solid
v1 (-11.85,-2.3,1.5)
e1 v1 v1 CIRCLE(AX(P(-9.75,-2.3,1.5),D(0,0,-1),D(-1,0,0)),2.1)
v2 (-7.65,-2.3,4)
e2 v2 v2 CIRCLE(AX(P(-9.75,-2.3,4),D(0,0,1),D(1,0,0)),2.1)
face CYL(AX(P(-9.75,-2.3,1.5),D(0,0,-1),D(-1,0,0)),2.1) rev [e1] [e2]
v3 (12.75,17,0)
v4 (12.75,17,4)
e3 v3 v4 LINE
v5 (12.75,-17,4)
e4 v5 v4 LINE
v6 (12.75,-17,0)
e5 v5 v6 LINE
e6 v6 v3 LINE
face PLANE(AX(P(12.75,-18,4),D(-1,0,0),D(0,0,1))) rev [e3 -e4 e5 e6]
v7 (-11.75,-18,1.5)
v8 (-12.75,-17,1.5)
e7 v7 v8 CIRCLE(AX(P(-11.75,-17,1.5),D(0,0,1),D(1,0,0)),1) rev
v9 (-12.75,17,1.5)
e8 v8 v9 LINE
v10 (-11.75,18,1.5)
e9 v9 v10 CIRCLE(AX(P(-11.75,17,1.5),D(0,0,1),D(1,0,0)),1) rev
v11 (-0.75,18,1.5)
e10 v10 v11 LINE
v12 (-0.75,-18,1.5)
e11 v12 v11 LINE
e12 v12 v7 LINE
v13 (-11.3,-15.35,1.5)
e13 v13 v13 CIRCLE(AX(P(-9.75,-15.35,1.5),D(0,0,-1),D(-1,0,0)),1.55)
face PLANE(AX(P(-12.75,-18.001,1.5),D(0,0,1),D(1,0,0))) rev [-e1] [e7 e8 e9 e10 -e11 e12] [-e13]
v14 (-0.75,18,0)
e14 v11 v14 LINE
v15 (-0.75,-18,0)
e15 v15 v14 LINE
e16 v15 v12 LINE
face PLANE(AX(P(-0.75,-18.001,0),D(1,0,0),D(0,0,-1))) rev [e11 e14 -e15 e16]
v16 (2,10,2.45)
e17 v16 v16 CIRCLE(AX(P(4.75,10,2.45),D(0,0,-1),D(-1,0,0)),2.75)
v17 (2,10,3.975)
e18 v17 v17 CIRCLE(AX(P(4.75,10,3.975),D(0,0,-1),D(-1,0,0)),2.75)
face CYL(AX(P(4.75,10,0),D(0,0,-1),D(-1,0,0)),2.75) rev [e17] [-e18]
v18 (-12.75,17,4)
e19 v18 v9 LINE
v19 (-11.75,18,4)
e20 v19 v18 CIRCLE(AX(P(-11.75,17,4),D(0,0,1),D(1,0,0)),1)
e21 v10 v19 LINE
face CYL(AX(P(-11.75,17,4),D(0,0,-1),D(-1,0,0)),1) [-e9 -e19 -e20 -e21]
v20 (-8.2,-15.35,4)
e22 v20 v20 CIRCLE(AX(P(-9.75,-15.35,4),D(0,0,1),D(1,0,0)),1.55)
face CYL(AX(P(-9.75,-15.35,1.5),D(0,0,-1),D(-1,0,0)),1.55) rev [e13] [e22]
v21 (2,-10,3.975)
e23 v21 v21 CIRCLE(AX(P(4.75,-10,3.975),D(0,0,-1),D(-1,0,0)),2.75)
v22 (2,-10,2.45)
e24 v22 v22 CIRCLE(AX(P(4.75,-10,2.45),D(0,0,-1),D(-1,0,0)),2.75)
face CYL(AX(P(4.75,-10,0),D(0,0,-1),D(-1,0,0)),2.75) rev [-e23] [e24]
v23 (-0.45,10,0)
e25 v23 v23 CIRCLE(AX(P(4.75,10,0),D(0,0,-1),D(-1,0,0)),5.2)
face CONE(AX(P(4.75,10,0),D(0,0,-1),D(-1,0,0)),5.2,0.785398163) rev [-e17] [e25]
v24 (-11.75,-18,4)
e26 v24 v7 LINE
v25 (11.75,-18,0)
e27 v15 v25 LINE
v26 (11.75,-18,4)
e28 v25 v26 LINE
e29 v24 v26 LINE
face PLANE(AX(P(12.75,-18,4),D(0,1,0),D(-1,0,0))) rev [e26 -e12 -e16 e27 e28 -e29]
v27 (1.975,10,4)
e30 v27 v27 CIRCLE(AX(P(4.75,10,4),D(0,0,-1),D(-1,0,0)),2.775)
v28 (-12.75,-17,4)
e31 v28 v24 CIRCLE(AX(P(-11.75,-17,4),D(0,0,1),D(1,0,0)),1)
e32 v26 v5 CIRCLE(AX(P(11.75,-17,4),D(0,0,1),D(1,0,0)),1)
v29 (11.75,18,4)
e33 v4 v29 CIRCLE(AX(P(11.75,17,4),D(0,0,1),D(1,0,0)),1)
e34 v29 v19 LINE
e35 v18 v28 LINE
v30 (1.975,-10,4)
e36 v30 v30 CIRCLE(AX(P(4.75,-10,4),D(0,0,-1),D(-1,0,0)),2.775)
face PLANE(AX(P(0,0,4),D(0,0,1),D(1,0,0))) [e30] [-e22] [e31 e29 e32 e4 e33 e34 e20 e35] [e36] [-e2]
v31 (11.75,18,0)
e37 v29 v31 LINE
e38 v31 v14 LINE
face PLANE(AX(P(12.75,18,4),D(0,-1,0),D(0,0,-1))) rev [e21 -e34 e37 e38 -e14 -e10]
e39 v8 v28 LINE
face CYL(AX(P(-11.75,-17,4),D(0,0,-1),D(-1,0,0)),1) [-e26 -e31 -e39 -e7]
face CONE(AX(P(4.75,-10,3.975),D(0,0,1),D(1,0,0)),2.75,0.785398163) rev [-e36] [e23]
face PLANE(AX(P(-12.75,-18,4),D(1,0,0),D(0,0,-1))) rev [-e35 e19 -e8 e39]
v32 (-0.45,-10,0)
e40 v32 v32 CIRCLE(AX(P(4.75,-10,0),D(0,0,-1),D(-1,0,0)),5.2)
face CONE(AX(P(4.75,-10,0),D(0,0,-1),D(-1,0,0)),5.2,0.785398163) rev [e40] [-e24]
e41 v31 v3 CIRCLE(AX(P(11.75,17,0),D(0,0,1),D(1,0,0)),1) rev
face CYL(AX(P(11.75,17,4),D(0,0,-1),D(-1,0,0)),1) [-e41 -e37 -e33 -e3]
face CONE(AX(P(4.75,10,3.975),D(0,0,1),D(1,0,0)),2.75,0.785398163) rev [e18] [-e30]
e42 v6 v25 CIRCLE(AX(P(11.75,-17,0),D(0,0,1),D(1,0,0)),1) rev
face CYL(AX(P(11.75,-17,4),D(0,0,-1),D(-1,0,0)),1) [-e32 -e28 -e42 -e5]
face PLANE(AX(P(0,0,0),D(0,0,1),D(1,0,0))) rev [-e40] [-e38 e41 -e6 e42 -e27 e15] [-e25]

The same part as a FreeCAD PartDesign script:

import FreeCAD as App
import Part
import Sketcher
from FreeCAD import Vector
Q = App.Units.Quantity


def edges_at(feature, points):
    """Names of the edges that pass closest to the given points."""
    edges = feature.Shape.Edges
    near = lambda p: min(range(len(edges)), key=lambda i: edges[i].distToShape(Part.Vertex(*p))[0])
    return sorted({f"Edge{near(p) + 1}" for p in points})

doc = App.newDocument("Part")
body = doc.addObject("PartDesign::Body", "Body")

# Sketch on XY plane
sketch1 = body.newObject("Sketcher::SketchObject", "Sketch")
sketch1.AttachmentSupport = (doc.getObject("XY_Plane"), [""])
sketch1.MapMode = "FlatFace"
sketch1.addGeometry(Part.LineSegment(Vector(-13, 18, 0), Vector(-13, -18, 0)), False)
sketch1.addGeometry(Part.LineSegment(Vector(-13, -18, 0), Vector(13, -18, 0)), False)
sketch1.addGeometry(Part.LineSegment(Vector(13, -18, 0), Vector(13, 18, 0)), False)
sketch1.addGeometry(Part.LineSegment(Vector(13, 18, 0), Vector(-13, 18, 0)), False)
sketch1.addConstraint(Sketcher.Constraint("Coincident", 0, 2, 1, 1))
sketch1.addConstraint(Sketcher.Constraint("Coincident", 1, 2, 2, 1))
sketch1.addConstraint(Sketcher.Constraint("Coincident", 2, 2, 3, 1))
sketch1.addConstraint(Sketcher.Constraint("Coincident", 3, 2, 0, 1))
sketch1.addConstraint(Sketcher.Constraint("Vertical", 0))
sketch1.addConstraint(Sketcher.Constraint("Horizontal", 1))
sketch1.addConstraint(Sketcher.Constraint("Vertical", 2))
sketch1.addConstraint(Sketcher.Constraint("Horizontal", 3))
sketch1.addConstraint(Sketcher.Constraint("Symmetric", 0, 2, 2, 2, -1, 1))
sketch1.addConstraint(Sketcher.Constraint("DistanceY", 0, 2, 0, 1, 36.0))
sketch1.addConstraint(Sketcher.Constraint("DistanceX", 1, 1, 1, 2, 25.5))
pad1 = body.newObject("PartDesign::Pad", "Pad")
pad1.Profile = sketch1
pad1.Length = 4

# Sketch on XZ plane
sketch2 = body.newObject("Sketcher::SketchObject", "Sketch001")
sketch2.AttachmentSupport = (doc.getObject("XZ_Plane"), [""])
sketch2.MapMode = "FlatFace"
sketch2.AttachmentOffset = App.Placement(Vector(0, 0, -18), App.Rotation())
sketch2.addGeometry(Part.LineSegment(Vector(-12.8, 0, 0), Vector(-12.8, 1.5, 0)), False)
sketch2.addGeometry(Part.LineSegment(Vector(-12.8, 1.5, 0), Vector(-0.8, 1.5, 0)), False)
sketch2.addGeometry(Part.LineSegment(Vector(-0.8, 1.5, 0), Vector(-0.8, 0, 0)), False)
sketch2.addGeometry(Part.LineSegment(Vector(-0.8, 0, 0), Vector(-12.8, 0, 0)), False)
sketch2.addConstraint(Sketcher.Constraint("Coincident", 0, 2, 1, 1))
sketch2.addConstraint(Sketcher.Constraint("Coincident", 1, 2, 2, 1))
sketch2.addConstraint(Sketcher.Constraint("Coincident", 2, 2, 3, 1))
sketch2.addConstraint(Sketcher.Constraint("Coincident", 3, 2, 0, 1))
sketch2.addConstraint(Sketcher.Constraint("Vertical", 0))
sketch2.addConstraint(Sketcher.Constraint("Horizontal", 1))
sketch2.addConstraint(Sketcher.Constraint("Vertical", 2))
sketch2.addConstraint(Sketcher.Constraint("Horizontal", 3))
sketch2.addConstraint(Sketcher.Constraint("PointOnObject", 2, 2, -1))
sketch2.addConstraint(Sketcher.Constraint("DistanceX", 1, 1, 1, 2, 12.0))
sketch2.addConstraint(Sketcher.Constraint("DistanceY", 0, 1, 0, 2, 1.5))
sketch2.addConstraint(Sketcher.Constraint("DistanceX", 0, 2, -1, 1, 12.75))
pocket1 = body.newObject("PartDesign::Pocket", "Pocket")
pocket1.Profile = sketch2
pocket1.Type = "UpToFirst"
pocket1.Reversed = True

# Sketch on YZ plane
sketch3 = body.newObject("Sketcher::SketchObject", "Sketch002")
sketch3.AttachmentSupport = (doc.getObject("YZ_Plane"), [""])
sketch3.MapMode = "FlatFace"
sketch3.AttachmentOffset = App.Placement(Vector(0, 0, 4.75), App.Rotation())
sketch3.addGeometry(Part.LineSegment(Vector(10, 4, 0), Vector(10, 0, 0)), False)
sketch3.addGeometry(Part.LineSegment(Vector(10, 0, 0), Vector(15.2, 0, 0)), False)
sketch3.addGeometry(Part.LineSegment(Vector(15.2, 0, 0), Vector(12.75, 2.45, 0)), False)
sketch3.addGeometry(Part.LineSegment(Vector(12.75, 2.45, 0), Vector(12.75, 3.975, 0)), False)
sketch3.addGeometry(Part.LineSegment(Vector(12.75, 3.975, 0), Vector(12.775, 4, 0)), False)
sketch3.addGeometry(Part.LineSegment(Vector(12.775, 4, 0), Vector(10, 4, 0)), False)
sketch3.addGeometry(Part.LineSegment(Vector(10, 0, 0), Vector(10, 4, 0)), True)  # axis
sketch3.addConstraint(Sketcher.Constraint("Coincident", 0, 2, 1, 1))
sketch3.addConstraint(Sketcher.Constraint("Coincident", 1, 2, 2, 1))
sketch3.addConstraint(Sketcher.Constraint("Coincident", 2, 2, 3, 1))
sketch3.addConstraint(Sketcher.Constraint("Coincident", 3, 2, 4, 1))
sketch3.addConstraint(Sketcher.Constraint("Coincident", 4, 2, 5, 1))
sketch3.addConstraint(Sketcher.Constraint("Coincident", 5, 2, 0, 1))
sketch3.addConstraint(Sketcher.Constraint("Vertical", 0))
sketch3.addConstraint(Sketcher.Constraint("Horizontal", 1))
sketch3.addConstraint(Sketcher.Constraint("Vertical", 3))
sketch3.addConstraint(Sketcher.Constraint("Horizontal", 5))
sketch3.addConstraint(Sketcher.Constraint("Vertical", 6))
sketch3.addConstraint(Sketcher.Constraint("Coincident", 6, 1, 0, 2))
sketch3.addConstraint(Sketcher.Constraint("PointOnObject", 0, 2, -1))
sketch3.addConstraint(Sketcher.Constraint("Perpendicular", 2, 4))
sketch3.addConstraint(Sketcher.Constraint("Horizontal", 4, 2, 6, 2))
sketch3.addConstraint(Sketcher.Constraint("DistanceY", 0, 2, 0, 1, 4.0))
sketch3.addConstraint(Sketcher.Constraint("Angle", 2, Q("135 deg")))
sketch3.addConstraint(Sketcher.Constraint("DistanceX", 1, 1, 1, 2, 5.2))
sketch3.addConstraint(Sketcher.Constraint("DistanceX", -1, 1, 0, 2, 10.0))
sketch3.addConstraint(Sketcher.Constraint("DistanceX", 5, 2, 5, 1, 2.775))
sketch3.addConstraint(Sketcher.Constraint("DistanceY", 3, 1, 3, 2, 1.525))
groove = body.newObject("PartDesign::Groove", "Groove")
groove.Profile = sketch3
groove.ReferenceAxis = (sketch3, ["Axis0"])
groove.Angle = 360
doc.recompute()

linearpattern = body.newObject("PartDesign::LinearPattern", "LinearPattern")
linearpattern.Originals = [groove]
linearpattern.Direction = (doc.getObject("Y_Axis"), [""])
linearpattern.Mode = "offset"
linearpattern.Offset = 20
linearpattern.Occurrences = 2
linearpattern.Reversed = True
body.Tip = linearpattern

# Sketch on XY plane
sketch4 = body.newObject("Sketcher::SketchObject", "Sketch003")
sketch4.AttachmentSupport = (doc.getObject("XY_Plane"), [""])
sketch4.MapMode = "FlatFace"
sketch4.AttachmentOffset = App.Placement(Vector(0, 0, 1.5), App.Rotation())
sketch4.addGeometry(Part.Circle(Vector(-9.8, -15.3, 0), Vector(0, 0, 1), 1.6), False)
sketch4.addConstraint(Sketcher.Constraint("Diameter", 0, 3.1))
sketch4.addConstraint(Sketcher.Constraint("DistanceX", 0, 3, -1, 1, 9.75))
sketch4.addConstraint(Sketcher.Constraint("DistanceY", 0, 3, -1, 1, 15.35))
doc.recompute()
hole = body.newObject("PartDesign::Hole", "Hole")
hole.Profile = sketch4
hole.ThreadType = "None"
hole.Diameter = 3.1
hole.DepthType = "ThroughAll"
hole.Reversed = True

# Sketch on XY plane
sketch5 = body.newObject("Sketcher::SketchObject", "Sketch004")
sketch5.AttachmentSupport = (doc.getObject("XY_Plane"), [""])
sketch5.MapMode = "FlatFace"
sketch5.AttachmentOffset = App.Placement(Vector(0, 0, 1.5), App.Rotation())
sketch5.addGeometry(Part.Circle(Vector(-9.8, -2.3, 0), Vector(0, 0, 1), 2.1), False)
sketch5.addConstraint(Sketcher.Constraint("Diameter", 0, 4.2))
sketch5.addConstraint(Sketcher.Constraint("DistanceY", 0, 3, -1, 1, 2.3))
sketch5.addConstraint(Sketcher.Constraint("DistanceX", 0, 3, -1, 1, 9.75))
doc.recompute()
hole2 = body.newObject("PartDesign::Hole", "Hole001")
hole2.Profile = sketch5
hole2.ThreadType = "None"
hole2.Diameter = 4.2
hole2.DepthType = "ThroughAll"
hole2.Reversed = True
doc.recompute()

fillet = body.newObject("PartDesign::Fillet", "Fillet")
fillet.Base = (hole2, edges_at(hole2, [
    (-12.75, 18, 2.75),
    (12.75, 18, 2),
    (12.75, -18, 2),
    (-12.75, -18, 2.75),
]))
fillet.Radius = 1

doc.recompute()
